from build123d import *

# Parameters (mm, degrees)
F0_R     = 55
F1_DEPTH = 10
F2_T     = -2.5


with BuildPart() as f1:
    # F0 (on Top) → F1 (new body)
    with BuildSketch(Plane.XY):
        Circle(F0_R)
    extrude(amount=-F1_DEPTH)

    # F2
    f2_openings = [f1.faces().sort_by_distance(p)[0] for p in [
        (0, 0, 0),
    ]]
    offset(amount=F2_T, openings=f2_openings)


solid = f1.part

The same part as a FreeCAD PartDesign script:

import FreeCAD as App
import Part
import Sketcher


def faces_at(feature, points):
    """Names of the faces that lie closest to the given points."""
    faces = feature.Shape.Faces
    near = lambda p: min(range(len(faces)), key=lambda i: faces[i].distToShape(Part.Vertex(*p))[0])
    return sorted({f"Face{near(p) + 1}" for p in points})

doc = App.newDocument("Part")
params = doc.addObject("Spreadsheet::Sheet", "Params")
for row, (alias, value) in enumerate([
    ("sketch1_diameter", "110 mm"),
    ("pad1_length", "10 mm"),
    ("thickness_wall", "2.5 mm"),
], start=1):
    params.set(f"A{row}", alias)
    params.set(f"B{row}", "=" + value)
    params.setAlias(f"B{row}", alias)

body = doc.addObject("PartDesign::Body", "Body")

# Sketch on XY plane
sketch1 = body.newObject("Sketcher::SketchObject", "Sketch")
sketch1.AttachmentSupport = (doc.getObject("XY_Plane"), [""])
sketch1.MapMode = "FlatFace"
sketch1.addGeometry(Part.Circle(App.Vector(0, 0, 0), App.Vector(0, 0, 1), 55), False)
sketch1.addConstraint([
    Sketcher.Constraint("Coincident", 0, 3, -1, 1),
    Sketcher.Constraint("Diameter", 0, 110.0),
])
sketch1.setExpression("Constraints[1]", "Params.sketch1_diameter")
pad1 = body.newObject("PartDesign::Pad", "Pad")
pad1.Profile = sketch1
pad1.setExpression("Length", "Params.pad1_length")
pad1.Reversed = True
doc.recompute()

thickness = body.newObject("PartDesign::Thickness", "Thickness")
thickness.Base = (pad1, faces_at(pad1, [(0, 0, 0)]))
thickness.setExpression("Value", "Params.thickness_wall")
thickness.Reversed = True
thickness.Join = "Arc"

doc.recompute()
